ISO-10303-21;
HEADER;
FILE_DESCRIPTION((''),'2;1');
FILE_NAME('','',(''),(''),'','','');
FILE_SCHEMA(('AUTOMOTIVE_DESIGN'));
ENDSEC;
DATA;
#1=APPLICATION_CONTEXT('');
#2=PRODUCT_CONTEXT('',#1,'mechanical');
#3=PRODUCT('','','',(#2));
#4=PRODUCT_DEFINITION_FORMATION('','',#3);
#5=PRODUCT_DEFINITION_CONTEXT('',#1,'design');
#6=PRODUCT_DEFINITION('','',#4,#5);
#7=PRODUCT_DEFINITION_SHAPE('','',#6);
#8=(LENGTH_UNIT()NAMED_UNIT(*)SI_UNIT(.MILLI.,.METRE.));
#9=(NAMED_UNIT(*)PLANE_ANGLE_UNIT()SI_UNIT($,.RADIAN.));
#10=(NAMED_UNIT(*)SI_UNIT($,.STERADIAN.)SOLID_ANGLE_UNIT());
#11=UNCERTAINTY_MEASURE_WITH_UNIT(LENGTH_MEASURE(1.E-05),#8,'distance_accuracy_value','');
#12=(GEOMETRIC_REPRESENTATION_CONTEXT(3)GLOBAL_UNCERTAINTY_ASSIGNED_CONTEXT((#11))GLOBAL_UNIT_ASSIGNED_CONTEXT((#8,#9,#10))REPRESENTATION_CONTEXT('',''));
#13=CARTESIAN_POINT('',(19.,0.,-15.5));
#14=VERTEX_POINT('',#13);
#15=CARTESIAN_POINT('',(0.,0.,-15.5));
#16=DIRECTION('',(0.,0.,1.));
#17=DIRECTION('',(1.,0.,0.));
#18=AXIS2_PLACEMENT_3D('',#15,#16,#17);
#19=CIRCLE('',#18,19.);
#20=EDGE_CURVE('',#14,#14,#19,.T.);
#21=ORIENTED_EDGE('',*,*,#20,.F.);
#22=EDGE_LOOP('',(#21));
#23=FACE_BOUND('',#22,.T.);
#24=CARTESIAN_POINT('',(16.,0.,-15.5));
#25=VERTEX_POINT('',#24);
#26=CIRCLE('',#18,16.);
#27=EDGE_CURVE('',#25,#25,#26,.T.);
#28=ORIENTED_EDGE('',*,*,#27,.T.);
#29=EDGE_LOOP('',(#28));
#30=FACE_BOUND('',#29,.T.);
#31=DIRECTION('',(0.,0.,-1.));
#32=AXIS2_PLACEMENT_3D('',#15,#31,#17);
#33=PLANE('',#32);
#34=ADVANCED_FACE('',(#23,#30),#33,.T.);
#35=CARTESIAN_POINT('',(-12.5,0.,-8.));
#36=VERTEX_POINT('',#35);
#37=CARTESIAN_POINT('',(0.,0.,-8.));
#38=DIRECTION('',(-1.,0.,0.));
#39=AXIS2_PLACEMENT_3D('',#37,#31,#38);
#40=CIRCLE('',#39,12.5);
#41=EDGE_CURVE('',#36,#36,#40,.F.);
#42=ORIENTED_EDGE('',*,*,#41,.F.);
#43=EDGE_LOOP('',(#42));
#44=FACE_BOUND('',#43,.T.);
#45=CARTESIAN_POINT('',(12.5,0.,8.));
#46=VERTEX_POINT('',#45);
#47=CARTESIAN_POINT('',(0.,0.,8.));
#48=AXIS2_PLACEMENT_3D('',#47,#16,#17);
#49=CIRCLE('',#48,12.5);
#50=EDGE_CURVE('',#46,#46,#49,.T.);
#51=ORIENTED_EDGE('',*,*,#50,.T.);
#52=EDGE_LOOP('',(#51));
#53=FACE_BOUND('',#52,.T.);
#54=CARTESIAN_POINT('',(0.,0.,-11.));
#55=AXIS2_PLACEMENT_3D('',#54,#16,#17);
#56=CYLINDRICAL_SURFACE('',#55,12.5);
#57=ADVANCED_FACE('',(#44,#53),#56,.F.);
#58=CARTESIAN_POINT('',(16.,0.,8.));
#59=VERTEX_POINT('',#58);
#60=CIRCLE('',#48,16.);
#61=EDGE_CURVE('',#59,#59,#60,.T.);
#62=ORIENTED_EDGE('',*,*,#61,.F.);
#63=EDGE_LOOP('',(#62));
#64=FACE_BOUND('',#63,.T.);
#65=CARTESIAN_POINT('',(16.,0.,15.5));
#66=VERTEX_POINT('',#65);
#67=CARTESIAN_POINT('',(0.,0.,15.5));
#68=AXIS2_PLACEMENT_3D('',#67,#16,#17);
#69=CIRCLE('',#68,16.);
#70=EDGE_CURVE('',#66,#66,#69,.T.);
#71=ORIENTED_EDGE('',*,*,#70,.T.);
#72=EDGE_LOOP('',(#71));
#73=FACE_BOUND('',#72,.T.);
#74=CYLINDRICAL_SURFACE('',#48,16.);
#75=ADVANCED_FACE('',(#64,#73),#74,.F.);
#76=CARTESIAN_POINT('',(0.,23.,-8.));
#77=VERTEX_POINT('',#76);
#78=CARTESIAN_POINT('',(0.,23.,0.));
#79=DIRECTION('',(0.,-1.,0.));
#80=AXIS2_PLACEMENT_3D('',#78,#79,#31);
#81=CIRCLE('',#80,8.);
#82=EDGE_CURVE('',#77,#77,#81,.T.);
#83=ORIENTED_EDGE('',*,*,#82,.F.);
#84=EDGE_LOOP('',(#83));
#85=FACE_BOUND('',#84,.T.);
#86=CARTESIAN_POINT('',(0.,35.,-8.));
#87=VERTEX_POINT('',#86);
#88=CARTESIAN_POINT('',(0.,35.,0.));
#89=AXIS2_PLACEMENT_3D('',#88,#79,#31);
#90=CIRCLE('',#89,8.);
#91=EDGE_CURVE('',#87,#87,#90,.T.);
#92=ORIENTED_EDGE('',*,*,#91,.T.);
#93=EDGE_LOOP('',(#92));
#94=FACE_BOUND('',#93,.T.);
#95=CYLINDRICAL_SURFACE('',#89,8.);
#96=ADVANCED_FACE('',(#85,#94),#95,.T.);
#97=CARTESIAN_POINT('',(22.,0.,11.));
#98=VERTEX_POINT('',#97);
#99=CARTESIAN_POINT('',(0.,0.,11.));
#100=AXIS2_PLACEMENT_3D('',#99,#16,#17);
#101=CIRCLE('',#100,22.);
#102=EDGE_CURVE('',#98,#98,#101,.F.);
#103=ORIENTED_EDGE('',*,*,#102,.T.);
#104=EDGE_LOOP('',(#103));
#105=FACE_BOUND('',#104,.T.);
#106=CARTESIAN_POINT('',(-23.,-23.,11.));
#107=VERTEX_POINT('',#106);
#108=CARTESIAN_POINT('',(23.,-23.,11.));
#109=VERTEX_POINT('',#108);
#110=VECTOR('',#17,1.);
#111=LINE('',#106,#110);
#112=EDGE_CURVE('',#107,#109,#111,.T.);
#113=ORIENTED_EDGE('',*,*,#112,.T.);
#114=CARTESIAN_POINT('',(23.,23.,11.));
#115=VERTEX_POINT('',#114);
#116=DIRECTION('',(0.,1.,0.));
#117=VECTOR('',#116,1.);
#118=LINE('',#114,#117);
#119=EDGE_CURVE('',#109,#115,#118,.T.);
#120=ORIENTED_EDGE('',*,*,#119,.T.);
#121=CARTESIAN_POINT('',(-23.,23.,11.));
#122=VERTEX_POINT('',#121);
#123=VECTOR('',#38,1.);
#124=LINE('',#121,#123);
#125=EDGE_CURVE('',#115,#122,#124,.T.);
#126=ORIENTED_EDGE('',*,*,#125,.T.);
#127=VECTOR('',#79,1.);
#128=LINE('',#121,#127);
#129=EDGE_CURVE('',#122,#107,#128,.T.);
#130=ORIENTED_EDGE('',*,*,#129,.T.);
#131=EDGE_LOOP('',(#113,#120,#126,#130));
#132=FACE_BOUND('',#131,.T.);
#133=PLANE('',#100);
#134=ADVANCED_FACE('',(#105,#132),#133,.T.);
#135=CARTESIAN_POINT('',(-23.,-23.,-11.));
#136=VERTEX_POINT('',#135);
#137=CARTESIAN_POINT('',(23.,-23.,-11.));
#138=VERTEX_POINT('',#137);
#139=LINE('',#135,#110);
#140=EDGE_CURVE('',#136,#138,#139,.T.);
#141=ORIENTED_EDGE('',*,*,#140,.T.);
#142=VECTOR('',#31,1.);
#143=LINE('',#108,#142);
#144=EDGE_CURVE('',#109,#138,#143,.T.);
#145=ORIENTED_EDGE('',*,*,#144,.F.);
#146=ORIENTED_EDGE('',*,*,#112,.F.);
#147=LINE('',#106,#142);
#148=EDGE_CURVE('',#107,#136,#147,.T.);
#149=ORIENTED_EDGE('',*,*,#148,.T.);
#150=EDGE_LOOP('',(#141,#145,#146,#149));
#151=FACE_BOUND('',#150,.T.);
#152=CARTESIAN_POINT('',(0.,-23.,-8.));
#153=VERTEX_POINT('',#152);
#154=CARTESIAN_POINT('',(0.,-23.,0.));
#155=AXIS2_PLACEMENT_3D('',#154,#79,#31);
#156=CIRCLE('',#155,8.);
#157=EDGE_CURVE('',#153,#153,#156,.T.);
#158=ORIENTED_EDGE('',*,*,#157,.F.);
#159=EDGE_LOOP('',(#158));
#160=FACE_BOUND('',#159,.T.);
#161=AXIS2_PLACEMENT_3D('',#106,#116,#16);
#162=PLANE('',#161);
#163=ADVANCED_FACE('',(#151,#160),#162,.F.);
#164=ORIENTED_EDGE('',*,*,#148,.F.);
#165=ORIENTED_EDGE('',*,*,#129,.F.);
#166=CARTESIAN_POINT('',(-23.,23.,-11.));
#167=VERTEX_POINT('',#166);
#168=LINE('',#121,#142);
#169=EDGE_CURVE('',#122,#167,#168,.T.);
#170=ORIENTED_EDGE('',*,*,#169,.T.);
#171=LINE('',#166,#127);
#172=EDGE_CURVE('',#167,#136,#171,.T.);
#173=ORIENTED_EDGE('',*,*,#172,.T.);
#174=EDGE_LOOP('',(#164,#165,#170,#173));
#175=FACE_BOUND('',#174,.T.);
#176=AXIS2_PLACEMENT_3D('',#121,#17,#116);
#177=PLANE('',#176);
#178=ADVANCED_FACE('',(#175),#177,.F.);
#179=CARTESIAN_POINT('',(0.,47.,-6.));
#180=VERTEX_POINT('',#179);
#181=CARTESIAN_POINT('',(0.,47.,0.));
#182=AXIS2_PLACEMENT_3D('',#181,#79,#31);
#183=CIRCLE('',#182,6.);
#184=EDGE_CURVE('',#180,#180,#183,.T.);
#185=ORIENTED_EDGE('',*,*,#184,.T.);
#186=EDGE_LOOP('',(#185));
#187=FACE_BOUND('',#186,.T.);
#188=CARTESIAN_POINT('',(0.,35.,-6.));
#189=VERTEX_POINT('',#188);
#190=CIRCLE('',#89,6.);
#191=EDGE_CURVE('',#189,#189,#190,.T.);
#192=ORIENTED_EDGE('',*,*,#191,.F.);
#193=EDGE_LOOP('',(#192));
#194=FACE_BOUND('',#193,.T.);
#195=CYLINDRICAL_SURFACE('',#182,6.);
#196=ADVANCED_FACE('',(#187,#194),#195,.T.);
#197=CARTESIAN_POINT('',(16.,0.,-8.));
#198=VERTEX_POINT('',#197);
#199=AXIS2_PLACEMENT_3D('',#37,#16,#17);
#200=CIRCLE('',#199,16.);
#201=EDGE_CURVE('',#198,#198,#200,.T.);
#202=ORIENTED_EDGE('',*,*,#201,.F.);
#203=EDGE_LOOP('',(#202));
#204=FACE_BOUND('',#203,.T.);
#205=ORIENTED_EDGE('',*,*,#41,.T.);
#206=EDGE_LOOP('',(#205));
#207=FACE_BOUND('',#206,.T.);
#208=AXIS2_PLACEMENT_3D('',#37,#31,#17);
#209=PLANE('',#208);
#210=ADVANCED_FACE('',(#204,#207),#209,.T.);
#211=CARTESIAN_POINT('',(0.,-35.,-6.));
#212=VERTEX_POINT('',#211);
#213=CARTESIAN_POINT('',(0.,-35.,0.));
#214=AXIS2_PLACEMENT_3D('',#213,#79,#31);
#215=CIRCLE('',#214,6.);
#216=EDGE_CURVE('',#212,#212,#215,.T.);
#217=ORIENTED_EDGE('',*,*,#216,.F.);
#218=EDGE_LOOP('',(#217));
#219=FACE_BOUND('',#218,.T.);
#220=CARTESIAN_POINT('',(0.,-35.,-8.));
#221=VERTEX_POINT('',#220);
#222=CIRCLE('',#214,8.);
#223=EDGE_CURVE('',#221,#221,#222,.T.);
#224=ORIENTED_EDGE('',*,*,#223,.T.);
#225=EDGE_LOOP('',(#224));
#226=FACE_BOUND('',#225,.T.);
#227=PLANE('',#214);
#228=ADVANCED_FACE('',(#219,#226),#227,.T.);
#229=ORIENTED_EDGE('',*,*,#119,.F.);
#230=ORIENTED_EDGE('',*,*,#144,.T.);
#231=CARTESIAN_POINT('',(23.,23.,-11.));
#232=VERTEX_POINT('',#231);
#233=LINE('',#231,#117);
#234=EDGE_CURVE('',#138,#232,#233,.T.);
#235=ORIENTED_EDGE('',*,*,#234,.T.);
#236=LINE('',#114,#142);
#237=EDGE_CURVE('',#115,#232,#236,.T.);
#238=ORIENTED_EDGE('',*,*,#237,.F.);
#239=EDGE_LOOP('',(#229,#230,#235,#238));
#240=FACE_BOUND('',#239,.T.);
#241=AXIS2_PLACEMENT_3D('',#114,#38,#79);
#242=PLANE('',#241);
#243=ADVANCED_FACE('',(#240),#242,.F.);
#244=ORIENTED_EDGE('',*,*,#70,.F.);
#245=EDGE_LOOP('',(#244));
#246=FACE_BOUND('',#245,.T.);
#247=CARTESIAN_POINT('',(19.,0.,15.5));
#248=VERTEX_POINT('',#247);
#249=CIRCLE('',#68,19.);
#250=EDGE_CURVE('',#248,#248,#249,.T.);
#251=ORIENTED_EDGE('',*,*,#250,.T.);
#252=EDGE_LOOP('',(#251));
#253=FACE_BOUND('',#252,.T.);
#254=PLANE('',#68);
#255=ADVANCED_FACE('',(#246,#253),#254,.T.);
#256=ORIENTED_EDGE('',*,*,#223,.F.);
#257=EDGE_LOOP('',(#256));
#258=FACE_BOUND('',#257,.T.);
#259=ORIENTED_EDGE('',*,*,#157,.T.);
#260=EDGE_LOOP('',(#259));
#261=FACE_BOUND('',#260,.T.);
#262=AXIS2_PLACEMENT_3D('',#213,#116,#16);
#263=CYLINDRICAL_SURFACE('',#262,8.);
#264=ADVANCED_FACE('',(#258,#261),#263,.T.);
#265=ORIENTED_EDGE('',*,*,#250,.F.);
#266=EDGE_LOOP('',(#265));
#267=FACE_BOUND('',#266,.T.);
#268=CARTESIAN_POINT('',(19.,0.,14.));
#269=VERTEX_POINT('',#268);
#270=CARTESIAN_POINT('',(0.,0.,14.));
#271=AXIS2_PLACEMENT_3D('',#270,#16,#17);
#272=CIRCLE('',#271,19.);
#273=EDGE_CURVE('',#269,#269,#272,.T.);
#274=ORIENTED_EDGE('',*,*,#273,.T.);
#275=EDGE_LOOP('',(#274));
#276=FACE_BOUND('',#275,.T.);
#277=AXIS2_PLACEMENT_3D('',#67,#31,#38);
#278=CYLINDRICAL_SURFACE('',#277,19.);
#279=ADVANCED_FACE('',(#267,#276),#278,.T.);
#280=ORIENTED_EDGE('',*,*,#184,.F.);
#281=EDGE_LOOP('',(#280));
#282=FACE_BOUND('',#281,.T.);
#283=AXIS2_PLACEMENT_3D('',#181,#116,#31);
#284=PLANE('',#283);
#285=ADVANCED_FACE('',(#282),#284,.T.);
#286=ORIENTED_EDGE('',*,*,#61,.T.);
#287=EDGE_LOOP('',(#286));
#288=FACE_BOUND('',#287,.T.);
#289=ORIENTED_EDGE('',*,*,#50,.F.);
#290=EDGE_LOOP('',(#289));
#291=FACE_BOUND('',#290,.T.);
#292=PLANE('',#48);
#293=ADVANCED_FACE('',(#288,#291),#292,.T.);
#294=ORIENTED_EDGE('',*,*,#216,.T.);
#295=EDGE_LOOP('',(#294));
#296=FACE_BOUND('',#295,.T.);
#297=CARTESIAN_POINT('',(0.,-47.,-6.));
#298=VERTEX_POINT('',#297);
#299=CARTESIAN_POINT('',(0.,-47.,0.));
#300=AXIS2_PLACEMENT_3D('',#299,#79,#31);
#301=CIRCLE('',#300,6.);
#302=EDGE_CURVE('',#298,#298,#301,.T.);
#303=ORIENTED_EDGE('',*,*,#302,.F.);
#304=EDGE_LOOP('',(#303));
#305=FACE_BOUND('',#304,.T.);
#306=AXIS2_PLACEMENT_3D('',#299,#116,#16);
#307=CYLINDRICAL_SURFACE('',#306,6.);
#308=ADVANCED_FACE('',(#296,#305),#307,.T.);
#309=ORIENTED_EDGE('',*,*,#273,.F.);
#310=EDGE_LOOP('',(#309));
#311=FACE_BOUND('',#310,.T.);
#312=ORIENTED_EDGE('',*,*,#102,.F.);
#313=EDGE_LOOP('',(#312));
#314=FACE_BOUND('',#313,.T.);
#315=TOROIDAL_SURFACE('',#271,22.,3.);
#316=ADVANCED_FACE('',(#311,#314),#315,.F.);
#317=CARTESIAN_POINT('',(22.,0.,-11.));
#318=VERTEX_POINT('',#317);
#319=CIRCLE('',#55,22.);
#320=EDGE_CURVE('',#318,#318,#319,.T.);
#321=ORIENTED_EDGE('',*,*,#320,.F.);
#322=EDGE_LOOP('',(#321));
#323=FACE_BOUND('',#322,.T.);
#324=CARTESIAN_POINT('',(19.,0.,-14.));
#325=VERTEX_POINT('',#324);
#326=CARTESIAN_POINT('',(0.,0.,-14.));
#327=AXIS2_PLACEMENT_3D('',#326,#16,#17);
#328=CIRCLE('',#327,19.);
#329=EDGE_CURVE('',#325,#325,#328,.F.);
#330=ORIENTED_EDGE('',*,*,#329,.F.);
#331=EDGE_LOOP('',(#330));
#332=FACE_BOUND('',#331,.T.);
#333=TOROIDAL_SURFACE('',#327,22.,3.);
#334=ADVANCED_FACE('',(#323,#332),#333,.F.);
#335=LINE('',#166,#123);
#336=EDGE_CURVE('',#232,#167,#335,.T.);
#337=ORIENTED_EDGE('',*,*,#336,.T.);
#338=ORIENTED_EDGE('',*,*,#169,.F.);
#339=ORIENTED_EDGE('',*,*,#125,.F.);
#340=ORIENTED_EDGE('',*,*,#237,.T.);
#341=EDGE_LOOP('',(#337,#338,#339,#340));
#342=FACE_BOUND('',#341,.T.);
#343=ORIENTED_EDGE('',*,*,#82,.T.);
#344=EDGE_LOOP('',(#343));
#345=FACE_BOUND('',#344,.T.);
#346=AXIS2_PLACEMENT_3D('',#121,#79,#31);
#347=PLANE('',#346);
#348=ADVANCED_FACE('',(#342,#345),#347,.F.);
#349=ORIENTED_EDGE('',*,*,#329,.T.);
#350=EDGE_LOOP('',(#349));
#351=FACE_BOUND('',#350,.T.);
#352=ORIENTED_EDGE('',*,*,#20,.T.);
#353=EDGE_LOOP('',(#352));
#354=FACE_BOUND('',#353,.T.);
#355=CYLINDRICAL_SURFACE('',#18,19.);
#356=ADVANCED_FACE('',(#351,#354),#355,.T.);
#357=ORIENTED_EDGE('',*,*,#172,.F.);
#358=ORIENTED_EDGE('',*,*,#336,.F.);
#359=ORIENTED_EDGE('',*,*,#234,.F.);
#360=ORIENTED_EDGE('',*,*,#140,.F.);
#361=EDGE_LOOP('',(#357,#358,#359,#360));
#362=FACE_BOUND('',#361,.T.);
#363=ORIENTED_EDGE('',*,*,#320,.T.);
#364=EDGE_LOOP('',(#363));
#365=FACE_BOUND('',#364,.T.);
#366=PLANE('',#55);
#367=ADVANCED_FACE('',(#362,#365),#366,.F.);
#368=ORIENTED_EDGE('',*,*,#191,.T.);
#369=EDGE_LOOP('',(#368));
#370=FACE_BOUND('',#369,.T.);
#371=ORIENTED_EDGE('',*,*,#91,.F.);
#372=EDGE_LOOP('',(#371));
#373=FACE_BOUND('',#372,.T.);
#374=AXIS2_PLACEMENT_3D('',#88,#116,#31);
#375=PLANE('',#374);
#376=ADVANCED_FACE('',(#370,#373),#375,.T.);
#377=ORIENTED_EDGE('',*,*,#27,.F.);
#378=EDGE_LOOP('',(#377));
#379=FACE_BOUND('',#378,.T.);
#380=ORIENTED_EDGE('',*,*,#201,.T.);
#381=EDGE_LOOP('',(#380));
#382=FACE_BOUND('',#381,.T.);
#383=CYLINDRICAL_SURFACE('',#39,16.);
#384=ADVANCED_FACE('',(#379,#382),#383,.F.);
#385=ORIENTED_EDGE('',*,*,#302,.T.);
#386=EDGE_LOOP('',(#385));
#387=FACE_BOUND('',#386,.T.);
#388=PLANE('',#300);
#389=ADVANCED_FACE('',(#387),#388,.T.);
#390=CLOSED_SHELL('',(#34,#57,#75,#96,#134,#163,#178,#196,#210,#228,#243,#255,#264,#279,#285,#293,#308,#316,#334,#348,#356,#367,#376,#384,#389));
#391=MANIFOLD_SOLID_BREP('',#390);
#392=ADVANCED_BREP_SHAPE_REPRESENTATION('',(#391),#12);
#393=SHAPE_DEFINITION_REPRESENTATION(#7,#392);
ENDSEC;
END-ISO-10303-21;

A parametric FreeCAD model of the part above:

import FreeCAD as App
import Part
import Sketcher
from FreeCAD import Vector
Q = App.Units.Quantity


def edges_at(feature, points):
    """Names of the edges that pass closest to the given points."""
    edges = feature.Shape.Edges
    near = lambda p: min(range(len(edges)), key=lambda i: edges[i].distToShape(Part.Vertex(*p))[0])
    return sorted({f"Edge{near(p) + 1}" for p in points})


def add_polygon(sketch, points):
    """Adds a closed chain of lines whose ends are joined by coincident constraints."""
    first, n = sketch.GeometryCount, len(points)
    for a, b in zip(points, points[1:] + points[:1]):
        sketch.addGeometry(Part.LineSegment(App.Vector(*a, 0), App.Vector(*b, 0)), False)
    for i in range(n):
        sketch.addConstraint(Sketcher.Constraint("Coincident", first + i, 2, first + (i + 1) % n, 1))

doc = App.newDocument("Part")
body = doc.addObject("PartDesign::Body", "Body")

sketch1 = body.newObject("Sketcher::SketchObject", "Sketch")
sketch1.AttachmentSupport = (doc.getObject("XY_Plane"), [""])
sketch1.MapMode = "FlatFace"
add_polygon(sketch1, [(-23, 23), (-23, -23), (23, -23), (23, 23)])
sketch1.addConstraint([
    Sketcher.Constraint("Vertical", 0),
    Sketcher.Constraint("Horizontal", 1),
    Sketcher.Constraint("Vertical", 2),
    Sketcher.Constraint("Horizontal", 3),
    Sketcher.Constraint("Symmetric", 0, 2, 2, 2, -1, 1),
    Sketcher.Constraint("Equal", 3, 0),
    Sketcher.Constraint("DistanceX", 1, 1, 1, 2, Q("46 mm")),
])
pad1 = body.newObject("PartDesign::Pad", "Pad")
pad1.Profile = sketch1
pad1.Length = 22
pad1.Midplane = True

sketch2 = body.newObject("Sketcher::SketchObject", "Sketch001")
sketch2.AttachmentSupport = (doc.getObject("XY_Plane"), [""])
sketch2.MapMode = "FlatFace"
sketch2.AttachmentOffset = App.Placement(Vector(0, 0, 11), App.Rotation())
sketch2.addGeometry(Part.Circle(Vector(0, 0, 0), Vector(0, 0, 1), 16), False)
sketch2.addConstraint([
    Sketcher.Constraint("Coincident", 0, 3, -1, 1),
    Sketcher.Constraint("Diameter", 0, Q("32 mm")),
])
pocket1 = body.newObject("PartDesign::Pocket", "Pocket")
pocket1.Profile = sketch2
pocket1.Length = 3

sketch3 = body.newObject("Sketcher::SketchObject", "Sketch002")
sketch3.AttachmentSupport = (doc.getObject("XY_Plane"), [""])
sketch3.MapMode = "FlatFace"
sketch3.AttachmentOffset = App.Placement(Vector(0, 0, 8), App.Rotation())
sketch3.addGeometry(Part.Circle(Vector(0, 0, 0), Vector(0, 0, 1), 12), False)
sketch3.addConstraint([
    Sketcher.Constraint("Coincident", 0, 3, -1, 1),
    Sketcher.Constraint("Diameter", 0, Q("25 mm")),
])
pocket2 = body.newObject("PartDesign::Pocket", "Pocket001")
pocket2.Profile = sketch3
pocket2.Type = "ThroughAll"

sketch4 = body.newObject("Sketcher::SketchObject", "Sketch003")
sketch4.AttachmentSupport = (doc.getObject("XZ_Plane"), [""])
sketch4.MapMode = "FlatFace"
sketch4.AttachmentOffset = App.Placement(Vector(0, 0, 23), App.Rotation())
sketch4.addGeometry(Part.Circle(Vector(0, 0, 0), Vector(0, 0, 1), 8), False)
sketch4.addConstraint([
    Sketcher.Constraint("Coincident", 0, 3, -1, 1),
    Sketcher.Constraint("Diameter", 0, Q("16 mm")),
])
pad2 = body.newObject("PartDesign::Pad", "Pad001")
pad2.Profile = sketch4
pad2.Length = 12

sketch5 = body.newObject("Sketcher::SketchObject", "Sketch004")
sketch5.AttachmentSupport = (doc.getObject("XY_Plane"), [""])
sketch5.MapMode = "FlatFace"
sketch5.AttachmentOffset = App.Placement(Vector(0, 0, 11), App.Rotation())
sketch5.addGeometry(Part.Circle(Vector(0, 0, 0), Vector(0, 0, 1), 19), False)
sketch5.addConstraint([
    Sketcher.Constraint("Coincident", 0, 3, -1, 1),
    Sketcher.Constraint("Diameter", 0, Q("38 mm")),
])
pad3 = body.newObject("PartDesign::Pad", "Pad002")
pad3.Profile = sketch5
pad3.Length = 4.5

sketch6 = body.newObject("Sketcher::SketchObject", "Sketch005")
sketch6.AttachmentSupport = (doc.getObject("XY_Plane"), [""])
sketch6.MapMode = "FlatFace"
sketch6.AttachmentOffset = App.Placement(Vector(0, 0, 15.5), App.Rotation())
sketch6.addGeometry(Part.Circle(Vector(0, 0, 0), Vector(0, 0, 1), 16), False)
sketch6.addConstraint([
    Sketcher.Constraint("Coincident", 0, 3, -1, 1),
    Sketcher.Constraint("Diameter", 0, Q("32 mm")),
])
pocket3 = body.newObject("PartDesign::Pocket", "Pocket002")
pocket3.Profile = sketch6
pocket3.Length = 7.5
doc.recompute()

mirrored = body.newObject("PartDesign::Mirrored", "Mirrored")
mirrored.Originals = [pad3]
mirrored.MirrorPlane = (doc.getObject("XY_Plane"), [""])
body.Tip = mirrored
doc.recompute()

mirrored2 = body.newObject("PartDesign::Mirrored", "Mirrored001")
mirrored2.Originals = [pocket3]
mirrored2.MirrorPlane = (doc.getObject("XY_Plane"), [""])
body.Tip = mirrored2
doc.recompute()

fillet = body.newObject("PartDesign::Fillet", "Fillet")
fillet.Base = (mirrored2, edges_at(mirrored2, [(-19, 0, 11), (-19, 0, -11)]))
fillet.Radius = 3

sketch7 = body.newObject("Sketcher::SketchObject", "Sketch006")
sketch7.AttachmentSupport = (doc.getObject("XZ_Plane"), [""])
sketch7.MapMode = "FlatFace"
sketch7.AttachmentOffset = App.Placement(Vector(0, 0, 35), App.Rotation())
sketch7.addGeometry(Part.Circle(Vector(0, 0, 0), Vector(0, 0, 1), 6), False)
sketch7.addConstraint([
    Sketcher.Constraint("Coincident", 0, 3, -1, 1),
    Sketcher.Constraint("Diameter", 0, Q("12 mm")),
])
pad4 = body.newObject("PartDesign::Pad", "Pad003")
pad4.Profile = sketch7
pad4.Length = 12
doc.recompute()

mirrored3 = body.newObject("PartDesign::Mirrored", "Mirrored002")
mirrored3.Originals = [pad2, pad4]
mirrored3.MirrorPlane = (doc.getObject("XZ_Plane"), [""])
body.Tip = mirrored3

doc.recompute()
